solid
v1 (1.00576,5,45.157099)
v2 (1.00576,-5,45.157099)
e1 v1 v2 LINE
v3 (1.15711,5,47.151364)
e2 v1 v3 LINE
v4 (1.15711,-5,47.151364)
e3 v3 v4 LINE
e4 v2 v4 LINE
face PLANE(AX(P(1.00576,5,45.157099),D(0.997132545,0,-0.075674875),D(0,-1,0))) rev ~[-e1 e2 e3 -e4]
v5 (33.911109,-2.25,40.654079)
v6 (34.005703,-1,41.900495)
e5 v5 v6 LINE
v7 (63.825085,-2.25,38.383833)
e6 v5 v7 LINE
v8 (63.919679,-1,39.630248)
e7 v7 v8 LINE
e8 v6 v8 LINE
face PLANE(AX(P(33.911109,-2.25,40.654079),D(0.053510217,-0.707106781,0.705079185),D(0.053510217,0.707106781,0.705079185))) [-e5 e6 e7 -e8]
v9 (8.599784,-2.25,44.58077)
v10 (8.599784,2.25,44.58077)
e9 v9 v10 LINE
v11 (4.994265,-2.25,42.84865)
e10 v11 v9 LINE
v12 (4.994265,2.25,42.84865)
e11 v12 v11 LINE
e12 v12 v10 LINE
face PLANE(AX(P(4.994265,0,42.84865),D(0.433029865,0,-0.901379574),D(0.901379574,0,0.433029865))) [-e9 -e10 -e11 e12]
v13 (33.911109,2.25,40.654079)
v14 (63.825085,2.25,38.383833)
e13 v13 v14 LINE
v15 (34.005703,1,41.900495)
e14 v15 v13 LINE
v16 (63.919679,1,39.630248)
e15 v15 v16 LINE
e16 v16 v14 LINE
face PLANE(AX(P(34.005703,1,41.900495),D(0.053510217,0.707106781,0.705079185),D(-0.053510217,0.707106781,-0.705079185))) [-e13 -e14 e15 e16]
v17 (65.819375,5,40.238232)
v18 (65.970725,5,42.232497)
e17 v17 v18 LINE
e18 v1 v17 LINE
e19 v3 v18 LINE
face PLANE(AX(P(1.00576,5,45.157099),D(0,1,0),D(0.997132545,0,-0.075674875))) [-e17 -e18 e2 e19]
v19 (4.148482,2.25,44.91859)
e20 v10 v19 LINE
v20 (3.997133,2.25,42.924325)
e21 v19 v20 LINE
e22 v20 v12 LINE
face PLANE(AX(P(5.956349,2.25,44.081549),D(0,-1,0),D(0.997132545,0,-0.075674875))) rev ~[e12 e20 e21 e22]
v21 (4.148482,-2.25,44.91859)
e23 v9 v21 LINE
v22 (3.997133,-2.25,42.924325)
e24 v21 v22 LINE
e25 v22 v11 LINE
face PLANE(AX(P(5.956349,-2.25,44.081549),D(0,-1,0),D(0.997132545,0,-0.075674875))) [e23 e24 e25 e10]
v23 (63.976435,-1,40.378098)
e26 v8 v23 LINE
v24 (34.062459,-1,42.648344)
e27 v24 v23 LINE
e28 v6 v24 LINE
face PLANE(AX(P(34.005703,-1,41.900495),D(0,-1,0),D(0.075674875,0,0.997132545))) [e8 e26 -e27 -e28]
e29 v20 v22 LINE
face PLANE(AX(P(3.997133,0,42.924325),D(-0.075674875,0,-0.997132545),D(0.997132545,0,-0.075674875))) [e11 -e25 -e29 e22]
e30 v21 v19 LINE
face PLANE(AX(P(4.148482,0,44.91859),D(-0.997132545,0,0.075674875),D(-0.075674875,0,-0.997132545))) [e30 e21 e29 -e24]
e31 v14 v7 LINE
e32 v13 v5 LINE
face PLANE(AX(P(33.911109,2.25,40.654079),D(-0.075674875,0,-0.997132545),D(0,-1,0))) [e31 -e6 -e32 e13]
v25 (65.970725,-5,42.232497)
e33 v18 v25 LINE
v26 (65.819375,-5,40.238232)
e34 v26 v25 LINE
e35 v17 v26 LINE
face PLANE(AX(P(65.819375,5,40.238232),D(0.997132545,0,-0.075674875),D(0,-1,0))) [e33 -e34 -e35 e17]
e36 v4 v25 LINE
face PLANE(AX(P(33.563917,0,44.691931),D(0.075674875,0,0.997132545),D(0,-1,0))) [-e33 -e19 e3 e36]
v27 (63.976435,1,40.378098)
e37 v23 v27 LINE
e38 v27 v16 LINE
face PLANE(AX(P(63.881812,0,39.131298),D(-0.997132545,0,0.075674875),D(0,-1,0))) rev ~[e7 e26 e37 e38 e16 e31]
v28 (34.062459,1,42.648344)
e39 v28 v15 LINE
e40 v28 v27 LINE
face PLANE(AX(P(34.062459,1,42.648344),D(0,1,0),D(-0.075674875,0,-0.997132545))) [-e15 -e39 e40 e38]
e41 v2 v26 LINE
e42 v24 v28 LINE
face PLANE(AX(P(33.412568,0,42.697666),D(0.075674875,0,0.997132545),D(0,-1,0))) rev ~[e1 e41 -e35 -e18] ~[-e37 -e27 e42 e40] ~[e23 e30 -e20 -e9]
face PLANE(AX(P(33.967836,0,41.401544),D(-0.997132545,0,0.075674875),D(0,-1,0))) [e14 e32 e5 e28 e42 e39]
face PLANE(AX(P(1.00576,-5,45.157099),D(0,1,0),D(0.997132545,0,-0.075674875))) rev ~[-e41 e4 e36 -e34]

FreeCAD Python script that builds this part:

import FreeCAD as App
import Part
import Sketcher

V = App.Vector
Q = App.Units.Quantity

doc = App.newDocument("Part")
body = doc.addObject("PartDesign::Body", "Body")

# Sketch on YZ plane
sketch1 = body.newObject("Sketcher::SketchObject", "Sketch")
sketch1.AttachmentSupport = (doc.getObject("YZ_Plane"), [""])
sketch1.MapMode = "FlatFace"
sketch1.AttachmentOffset = App.Placement(V(0, 0, 31), App.Rotation())
sketch1.addGeometry([
    Part.LineSegment(V(1, 2, 0), V(-1, 2, 0)),  # 0
    Part.LineSegment(V(-1, 2, 0), V(-1, 1.25, 0)),  # 1
    Part.LineSegment(V(-1, 1.25, 0), V(-2.25, 0, 0)),  # 2
    Part.LineSegment(V(-2.25, 0, 0), V(2.25, 0, 0)),  # 3
    Part.LineSegment(V(2.25, 0, 0), V(1, 1.25, 0)),  # 4
    Part.LineSegment(V(1, 1.25, 0), V(1, 2, 0)),  # 5
], False)
sketch1.addConstraint([
    Sketcher.Constraint("Coincident", 0, 2, 1, 1),
    Sketcher.Constraint("Coincident", 1, 2, 2, 1),
    Sketcher.Constraint("Coincident", 2, 2, 3, 1),
    Sketcher.Constraint("Coincident", 3, 2, 4, 1),
    Sketcher.Constraint("Coincident", 4, 2, 5, 1),
    Sketcher.Constraint("Coincident", 5, 2, 0, 1),
    Sketcher.Constraint("Horizontal", 0),
    Sketcher.Constraint("Vertical", 1),
    Sketcher.Constraint("Horizontal", 3),
    Sketcher.Constraint("Vertical", 5),
    Sketcher.Constraint("Symmetric", 2, 2, 3, 2, -1, 1),
    Sketcher.Constraint("Symmetric", 1, 2, 4, 2, -2),
    Sketcher.Constraint("Perpendicular", 2, 4),
    Sketcher.Constraint("DistanceX", 0, 2, 0, 1, Q("2 mm")),
    Sketcher.Constraint("DistanceX", 3, 1, 3, 2, Q("4.5 mm")),
    Sketcher.Constraint("DistanceY", -1, 1, 0, 2, Q("2 mm")),
])
pad1 = body.newObject("PartDesign::Pad", "Pad")
pad1.Profile = sketch1
pad1.Length = 30

# Sketch on XY plane
sketch2 = body.newObject("Sketcher::SketchObject", "Sketch001")
sketch2.AttachmentSupport = (doc.getObject("XY_Plane"), [""])
sketch2.MapMode = "FlatFace"
sketch2.AttachmentOffset = App.Placement(V(0, 0, 2), App.Rotation())
sketch2.addGeometry([
    Part.LineSegment(V(62.84824, 5, 0), V(-2.15176, 5, 0)),
    Part.LineSegment(V(-2.15176, 5, 0), V(-2.15176, -5, 0)),
    Part.LineSegment(V(-2.15176, -5, 0), V(62.84824, -5, 0)),
    Part.LineSegment(V(62.84824, -5, 0), V(62.84824, 5, 0)),
], False)
sketch2.addConstraint([
    Sketcher.Constraint("Coincident", 0, 2, 1, 1),
    Sketcher.Constraint("Coincident", 1, 2, 2, 1),
    Sketcher.Constraint("Coincident", 2, 2, 3, 1),
    Sketcher.Constraint("Coincident", 3, 2, 0, 1),
    Sketcher.Constraint("Horizontal", 0),
    Sketcher.Constraint("Vertical", 1),
    Sketcher.Constraint("Horizontal", 2),
    Sketcher.Constraint("Vertical", 3),
    Sketcher.Constraint("DistanceX", 0, 2, 0, 1, Q("65 mm")),
    Sketcher.Constraint("DistanceY", 1, 2, 1, 1, Q("10 mm")),
    Sketcher.Constraint("DistanceY", -1, 1, 0, 2, Q("5 mm")),
    Sketcher.Constraint("DistanceX", 0, 2, -1, 1, Q("2.15176 mm")),
])
pad2 = body.newObject("PartDesign::Pad", "Pad001")
pad2.Profile = sketch2
pad2.Length = 2

# Sketch on XZ plane
sketch3 = body.newObject("Sketcher::SketchObject", "Sketch002")
sketch3.AttachmentSupport = (doc.getObject("XZ_Plane"), [""])
sketch3.MapMode = "FlatFace"
sketch3.addGeometry([
    Part.LineSegment(V(1, 2, 0), V(1, 0, 0)),
    Part.LineSegment(V(1, 0, 0), V(2, 0, 0)),
    Part.LineSegment(V(2, 0, 0), V(5.464102, 2, 0)),
    Part.LineSegment(V(5.464102, 2, 0), V(1, 2, 0)),
], False)
sketch3.addConstraint([
    Sketcher.Constraint("Coincident", 0, 2, 1, 1),
    Sketcher.Constraint("Coincident", 1, 2, 2, 1),
    Sketcher.Constraint("Coincident", 2, 2, 3, 1),
    Sketcher.Constraint("Coincident", 3, 2, 0, 1),
    Sketcher.Constraint("Vertical", 0),
    Sketcher.Constraint("Horizontal", 1),
    Sketcher.Constraint("Horizontal", 3),
    Sketcher.Constraint("PointOnObject", 0, 2, -1),
    Sketcher.Constraint("DistanceX", 1, 1, 1, 2, Q("1 mm")),
    Sketcher.Constraint("DistanceY", 0, 2, 0, 1, Q("2 mm")),
    Sketcher.Constraint("Angle", 2, Q("29.999997 deg")),
    Sketcher.Constraint("DistanceX", -1, 1, 0, 2, Q("1 mm")),
])
pad3 = body.newObject("PartDesign::Pad", "Pad002")
pad3.Profile = sketch3
pad3.Length = 4.5
pad3.Midplane = True
body2 = doc.addObject("PartDesign::Body", "Body001")
doc.recompute()

body.Placement = App.Placement(V(0, 0, 0), App.Rotation(V(0, 1, 0), 4.34))
boolean = body2.newObject("PartDesign::Boolean", "Boolean")
boolean.Type = "Fuse"
boolean.addObjects([body])
body3 = doc.addObject("PartDesign::Body", "Body002")
doc.recompute()

body2.Placement = App.Placement(V(3, 0, 43), App.Rotation(V(0, 0, 1), 0))
boolean2 = body3.newObject("PartDesign::Boolean", "Boolean001")
boolean2.Type = "Fuse"
boolean2.addObjects([body2])

doc.recompute()
